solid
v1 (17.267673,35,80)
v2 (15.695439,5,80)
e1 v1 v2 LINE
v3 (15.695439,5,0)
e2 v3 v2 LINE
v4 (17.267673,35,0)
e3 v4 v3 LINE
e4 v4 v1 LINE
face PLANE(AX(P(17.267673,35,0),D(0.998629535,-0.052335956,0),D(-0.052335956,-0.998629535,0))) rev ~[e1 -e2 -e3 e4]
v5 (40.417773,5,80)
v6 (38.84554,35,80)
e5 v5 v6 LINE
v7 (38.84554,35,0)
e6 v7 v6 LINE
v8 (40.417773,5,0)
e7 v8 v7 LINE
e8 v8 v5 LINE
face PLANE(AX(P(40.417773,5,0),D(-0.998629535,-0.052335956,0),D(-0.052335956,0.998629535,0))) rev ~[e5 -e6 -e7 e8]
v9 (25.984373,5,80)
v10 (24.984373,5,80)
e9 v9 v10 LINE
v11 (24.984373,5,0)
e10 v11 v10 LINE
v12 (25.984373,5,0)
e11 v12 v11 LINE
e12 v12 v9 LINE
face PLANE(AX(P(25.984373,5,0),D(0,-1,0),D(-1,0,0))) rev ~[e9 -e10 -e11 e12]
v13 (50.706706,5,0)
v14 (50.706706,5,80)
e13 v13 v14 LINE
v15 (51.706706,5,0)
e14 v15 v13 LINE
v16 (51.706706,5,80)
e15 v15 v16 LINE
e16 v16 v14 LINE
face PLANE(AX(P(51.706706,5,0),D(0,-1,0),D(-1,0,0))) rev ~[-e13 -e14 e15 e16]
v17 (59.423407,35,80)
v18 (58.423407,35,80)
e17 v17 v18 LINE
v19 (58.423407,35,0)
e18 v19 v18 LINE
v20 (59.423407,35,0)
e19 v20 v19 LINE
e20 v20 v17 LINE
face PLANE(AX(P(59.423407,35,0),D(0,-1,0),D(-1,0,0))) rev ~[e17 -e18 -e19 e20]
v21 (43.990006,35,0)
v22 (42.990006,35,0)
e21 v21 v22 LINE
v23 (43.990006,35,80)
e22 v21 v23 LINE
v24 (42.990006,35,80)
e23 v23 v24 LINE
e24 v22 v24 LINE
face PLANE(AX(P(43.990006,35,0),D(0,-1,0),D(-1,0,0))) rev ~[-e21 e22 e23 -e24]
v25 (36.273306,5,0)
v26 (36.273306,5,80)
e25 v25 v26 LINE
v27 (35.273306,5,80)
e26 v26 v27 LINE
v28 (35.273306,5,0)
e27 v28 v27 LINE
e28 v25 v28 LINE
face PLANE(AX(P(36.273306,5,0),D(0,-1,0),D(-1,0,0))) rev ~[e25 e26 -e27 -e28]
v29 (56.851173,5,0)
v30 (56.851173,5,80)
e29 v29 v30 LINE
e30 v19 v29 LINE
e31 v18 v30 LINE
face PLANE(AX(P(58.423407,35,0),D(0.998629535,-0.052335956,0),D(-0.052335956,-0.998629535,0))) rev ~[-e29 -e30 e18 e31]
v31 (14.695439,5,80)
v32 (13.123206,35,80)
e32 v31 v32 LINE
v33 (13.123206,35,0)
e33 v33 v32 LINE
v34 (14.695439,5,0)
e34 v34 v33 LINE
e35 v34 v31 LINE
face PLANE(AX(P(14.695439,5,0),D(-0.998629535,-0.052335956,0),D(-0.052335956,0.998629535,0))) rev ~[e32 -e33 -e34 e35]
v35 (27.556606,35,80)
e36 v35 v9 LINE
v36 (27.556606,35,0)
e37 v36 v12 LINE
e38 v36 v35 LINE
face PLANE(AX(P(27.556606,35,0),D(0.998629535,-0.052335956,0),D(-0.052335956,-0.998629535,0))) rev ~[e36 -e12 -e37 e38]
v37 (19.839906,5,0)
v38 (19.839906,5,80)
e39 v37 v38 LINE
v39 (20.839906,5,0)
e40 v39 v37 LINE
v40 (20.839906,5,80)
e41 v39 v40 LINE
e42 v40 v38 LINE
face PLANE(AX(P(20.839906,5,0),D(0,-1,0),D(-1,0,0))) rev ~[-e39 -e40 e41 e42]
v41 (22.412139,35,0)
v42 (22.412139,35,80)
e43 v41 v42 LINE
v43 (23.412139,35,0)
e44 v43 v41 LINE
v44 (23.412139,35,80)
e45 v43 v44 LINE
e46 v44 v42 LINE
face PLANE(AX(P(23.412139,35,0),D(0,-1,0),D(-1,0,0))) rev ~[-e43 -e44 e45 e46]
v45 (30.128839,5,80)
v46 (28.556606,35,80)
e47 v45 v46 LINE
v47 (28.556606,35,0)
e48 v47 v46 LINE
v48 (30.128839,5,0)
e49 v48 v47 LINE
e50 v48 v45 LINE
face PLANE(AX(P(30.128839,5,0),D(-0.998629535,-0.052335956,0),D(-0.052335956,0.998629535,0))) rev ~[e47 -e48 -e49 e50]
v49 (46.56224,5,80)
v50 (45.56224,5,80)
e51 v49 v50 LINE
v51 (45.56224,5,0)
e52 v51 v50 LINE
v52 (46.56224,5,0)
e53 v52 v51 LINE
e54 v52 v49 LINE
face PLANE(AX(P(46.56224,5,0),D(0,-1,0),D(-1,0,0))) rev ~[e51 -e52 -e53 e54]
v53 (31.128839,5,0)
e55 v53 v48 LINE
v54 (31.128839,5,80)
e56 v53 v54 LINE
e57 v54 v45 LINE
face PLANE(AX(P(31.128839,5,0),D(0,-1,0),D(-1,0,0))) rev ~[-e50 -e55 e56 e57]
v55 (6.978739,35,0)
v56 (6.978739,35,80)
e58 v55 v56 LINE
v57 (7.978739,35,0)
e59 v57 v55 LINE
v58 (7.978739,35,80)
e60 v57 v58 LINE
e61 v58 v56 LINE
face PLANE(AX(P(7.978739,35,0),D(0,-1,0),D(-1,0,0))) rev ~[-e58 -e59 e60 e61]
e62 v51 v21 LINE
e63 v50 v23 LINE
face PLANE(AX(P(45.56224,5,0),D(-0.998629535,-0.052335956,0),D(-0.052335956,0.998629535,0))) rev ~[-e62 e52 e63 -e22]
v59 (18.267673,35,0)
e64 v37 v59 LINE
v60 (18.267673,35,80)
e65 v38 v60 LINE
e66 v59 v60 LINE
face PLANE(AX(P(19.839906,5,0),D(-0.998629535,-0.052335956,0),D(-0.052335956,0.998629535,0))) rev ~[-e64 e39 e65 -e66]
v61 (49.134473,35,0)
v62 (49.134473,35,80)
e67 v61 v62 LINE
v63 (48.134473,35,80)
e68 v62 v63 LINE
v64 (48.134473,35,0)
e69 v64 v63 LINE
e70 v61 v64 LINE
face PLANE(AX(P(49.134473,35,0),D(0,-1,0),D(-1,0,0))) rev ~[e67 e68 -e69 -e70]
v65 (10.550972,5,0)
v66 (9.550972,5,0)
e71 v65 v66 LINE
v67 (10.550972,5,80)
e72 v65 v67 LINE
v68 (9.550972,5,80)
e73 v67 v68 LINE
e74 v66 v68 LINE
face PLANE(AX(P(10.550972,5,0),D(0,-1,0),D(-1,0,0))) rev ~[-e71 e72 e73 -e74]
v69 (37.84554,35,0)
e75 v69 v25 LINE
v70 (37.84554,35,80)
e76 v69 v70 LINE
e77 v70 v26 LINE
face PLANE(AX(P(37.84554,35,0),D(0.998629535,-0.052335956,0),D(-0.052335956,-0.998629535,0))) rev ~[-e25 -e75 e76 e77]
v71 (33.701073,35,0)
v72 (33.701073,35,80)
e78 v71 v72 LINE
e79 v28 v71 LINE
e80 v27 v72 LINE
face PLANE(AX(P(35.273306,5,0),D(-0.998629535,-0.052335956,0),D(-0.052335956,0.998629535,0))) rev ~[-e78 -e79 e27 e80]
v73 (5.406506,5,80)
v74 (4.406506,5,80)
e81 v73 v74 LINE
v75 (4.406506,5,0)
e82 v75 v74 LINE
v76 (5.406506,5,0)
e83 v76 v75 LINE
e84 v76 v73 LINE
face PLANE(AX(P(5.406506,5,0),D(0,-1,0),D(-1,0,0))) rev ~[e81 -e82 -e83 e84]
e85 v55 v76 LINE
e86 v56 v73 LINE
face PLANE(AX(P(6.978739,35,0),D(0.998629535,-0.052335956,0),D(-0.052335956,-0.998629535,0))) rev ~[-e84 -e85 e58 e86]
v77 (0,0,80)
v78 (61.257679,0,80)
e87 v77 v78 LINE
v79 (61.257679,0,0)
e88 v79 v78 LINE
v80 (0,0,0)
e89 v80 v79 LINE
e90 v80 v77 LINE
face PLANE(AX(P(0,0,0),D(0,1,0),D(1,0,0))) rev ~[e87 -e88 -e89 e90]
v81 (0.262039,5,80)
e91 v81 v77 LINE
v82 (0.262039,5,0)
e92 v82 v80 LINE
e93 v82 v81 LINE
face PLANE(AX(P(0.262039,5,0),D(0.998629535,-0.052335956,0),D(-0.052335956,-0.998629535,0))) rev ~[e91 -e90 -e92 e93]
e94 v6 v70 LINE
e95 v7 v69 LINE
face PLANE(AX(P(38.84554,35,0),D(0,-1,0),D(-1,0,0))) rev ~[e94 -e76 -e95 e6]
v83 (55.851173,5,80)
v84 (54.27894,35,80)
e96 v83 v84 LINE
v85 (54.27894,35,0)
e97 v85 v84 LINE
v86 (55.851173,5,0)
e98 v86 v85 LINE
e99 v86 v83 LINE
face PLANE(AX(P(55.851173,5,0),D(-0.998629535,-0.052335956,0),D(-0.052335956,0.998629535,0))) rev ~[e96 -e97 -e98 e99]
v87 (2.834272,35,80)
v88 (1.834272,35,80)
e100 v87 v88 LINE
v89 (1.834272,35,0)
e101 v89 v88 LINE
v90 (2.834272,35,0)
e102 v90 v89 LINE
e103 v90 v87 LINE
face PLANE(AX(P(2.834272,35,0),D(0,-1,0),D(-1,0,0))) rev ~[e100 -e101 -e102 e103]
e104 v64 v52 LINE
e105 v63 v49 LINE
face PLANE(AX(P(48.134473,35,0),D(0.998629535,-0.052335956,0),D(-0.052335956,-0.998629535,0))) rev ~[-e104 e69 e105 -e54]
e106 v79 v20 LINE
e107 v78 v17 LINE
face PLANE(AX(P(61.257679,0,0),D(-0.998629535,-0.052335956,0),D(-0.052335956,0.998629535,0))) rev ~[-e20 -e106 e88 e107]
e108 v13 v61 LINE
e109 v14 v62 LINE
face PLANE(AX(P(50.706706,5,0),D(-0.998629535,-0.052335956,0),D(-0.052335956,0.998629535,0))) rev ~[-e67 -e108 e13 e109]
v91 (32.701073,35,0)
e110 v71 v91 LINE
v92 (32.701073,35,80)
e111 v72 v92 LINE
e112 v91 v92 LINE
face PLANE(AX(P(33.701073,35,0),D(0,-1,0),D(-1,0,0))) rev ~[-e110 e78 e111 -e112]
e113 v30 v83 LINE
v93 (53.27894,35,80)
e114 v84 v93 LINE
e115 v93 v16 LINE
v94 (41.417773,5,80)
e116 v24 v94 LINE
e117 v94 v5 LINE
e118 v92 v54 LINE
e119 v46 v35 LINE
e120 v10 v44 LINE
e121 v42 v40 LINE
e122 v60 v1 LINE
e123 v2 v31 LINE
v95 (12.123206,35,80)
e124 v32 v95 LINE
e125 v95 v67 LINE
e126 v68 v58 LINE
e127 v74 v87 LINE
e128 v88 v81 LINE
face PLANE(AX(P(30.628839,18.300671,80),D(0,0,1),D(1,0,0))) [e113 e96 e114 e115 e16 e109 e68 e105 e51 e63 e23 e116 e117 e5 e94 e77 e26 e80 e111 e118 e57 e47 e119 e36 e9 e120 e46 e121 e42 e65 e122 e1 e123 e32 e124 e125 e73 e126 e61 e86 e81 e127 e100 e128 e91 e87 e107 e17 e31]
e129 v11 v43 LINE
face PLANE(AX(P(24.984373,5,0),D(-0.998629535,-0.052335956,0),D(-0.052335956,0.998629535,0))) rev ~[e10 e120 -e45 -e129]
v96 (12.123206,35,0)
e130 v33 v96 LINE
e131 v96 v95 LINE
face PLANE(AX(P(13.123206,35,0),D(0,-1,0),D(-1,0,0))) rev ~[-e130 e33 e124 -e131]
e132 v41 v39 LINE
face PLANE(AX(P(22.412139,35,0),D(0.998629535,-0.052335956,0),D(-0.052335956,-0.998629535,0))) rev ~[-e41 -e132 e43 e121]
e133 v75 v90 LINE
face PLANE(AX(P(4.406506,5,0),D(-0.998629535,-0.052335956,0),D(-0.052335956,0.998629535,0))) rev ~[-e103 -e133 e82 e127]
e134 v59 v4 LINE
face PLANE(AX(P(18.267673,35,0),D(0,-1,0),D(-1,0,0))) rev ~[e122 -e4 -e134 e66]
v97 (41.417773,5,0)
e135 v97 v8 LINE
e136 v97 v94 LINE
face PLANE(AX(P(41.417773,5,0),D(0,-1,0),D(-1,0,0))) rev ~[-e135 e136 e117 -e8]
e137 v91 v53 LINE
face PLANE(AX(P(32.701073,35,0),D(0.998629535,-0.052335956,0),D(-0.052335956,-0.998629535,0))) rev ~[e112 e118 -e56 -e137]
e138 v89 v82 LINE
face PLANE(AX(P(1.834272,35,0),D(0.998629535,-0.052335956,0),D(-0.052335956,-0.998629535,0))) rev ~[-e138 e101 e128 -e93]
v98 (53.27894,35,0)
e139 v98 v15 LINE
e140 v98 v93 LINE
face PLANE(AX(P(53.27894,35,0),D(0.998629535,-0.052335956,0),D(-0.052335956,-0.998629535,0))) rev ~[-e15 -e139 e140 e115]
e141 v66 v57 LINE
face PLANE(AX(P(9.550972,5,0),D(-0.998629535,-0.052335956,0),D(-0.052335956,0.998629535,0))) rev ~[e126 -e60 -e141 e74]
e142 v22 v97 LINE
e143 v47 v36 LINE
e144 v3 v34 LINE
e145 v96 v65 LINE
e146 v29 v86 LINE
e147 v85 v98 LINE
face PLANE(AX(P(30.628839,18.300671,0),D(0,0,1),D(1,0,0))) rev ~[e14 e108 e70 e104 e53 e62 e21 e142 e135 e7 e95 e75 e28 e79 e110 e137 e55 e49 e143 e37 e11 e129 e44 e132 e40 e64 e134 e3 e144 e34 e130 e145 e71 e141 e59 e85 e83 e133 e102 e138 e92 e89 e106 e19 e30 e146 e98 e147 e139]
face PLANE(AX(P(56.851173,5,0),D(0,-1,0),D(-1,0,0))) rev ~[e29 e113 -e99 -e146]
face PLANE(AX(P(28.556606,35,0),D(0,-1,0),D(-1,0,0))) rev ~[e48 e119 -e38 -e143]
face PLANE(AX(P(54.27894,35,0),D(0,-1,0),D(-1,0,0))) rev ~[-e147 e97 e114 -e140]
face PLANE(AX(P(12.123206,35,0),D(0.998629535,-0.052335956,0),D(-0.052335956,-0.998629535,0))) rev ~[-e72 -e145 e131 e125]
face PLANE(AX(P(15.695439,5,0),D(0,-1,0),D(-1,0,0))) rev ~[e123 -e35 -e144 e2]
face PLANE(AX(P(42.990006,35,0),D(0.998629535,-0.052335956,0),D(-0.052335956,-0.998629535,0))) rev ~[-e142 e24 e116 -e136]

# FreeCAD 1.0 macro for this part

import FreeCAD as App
import Part
import Sketcher
from FreeCAD import Vector
Q = App.Units.Quantity


def add_polygon(sketch, points):
    """Adds a closed chain of lines whose ends are joined by coincident constraints."""
    first, n = sketch.GeometryCount, len(points)
    for a, b in zip(points, points[1:] + points[:1]):
        sketch.addGeometry(Part.LineSegment(App.Vector(*a, 0), App.Vector(*b, 0)), False)
    for i in range(n):
        sketch.addConstraint(Sketcher.Constraint("Coincident", first + i, 2, first + (i + 1) % n, 1))

doc = App.newDocument("Part")
body = doc.addObject("PartDesign::Body", "Body")

sketch1 = doc.addObject("Sketcher::SketchObject", "Sketch")
body.addObject(sketch1)
sketch1.AttachmentSupport = (doc.XY_Plane, [""])
sketch1.MapMode = "FlatFace"
add_polygon(sketch1, [(0, 0), (61.3, 0), (59.4, 35), (58.4, 35), (56.9, 5), (55.9, 5), (54.3, 35), (53.3, 35), (51.7, 5), (50.7, 5), (49.1, 35), (48.1, 35), (46.6, 5), (45.6, 5), (44, 35), (43, 35), (41.4, 5), (40.4, 5), (38.8, 35), (37.8, 35), (36.3, 5), (35.3, 5), (33.7, 35), (32.7, 35), (31.1, 5), (30.1, 5), (28.6, 35), (27.6, 35), (26, 5), (25, 5), (23.4, 35), (22.4, 35), (20.8, 5), (19.8, 5), (18.3, 35), (17.3, 35), (15.7, 5), (14.7, 5), (13.1, 35), (12.1, 35), (10.6, 5), (9.6, 5), (8, 35), (7, 35), (5.4, 5), (4.4, 5), (2.8, 35), (1.8, 35), (0.3, 5)])
sketch1.addConstraint(Sketcher.Constraint("Horizontal", 0))
sketch1.addConstraint(Sketcher.Constraint("Horizontal", 2))
sketch1.addConstraint(Sketcher.Constraint("Horizontal", 4))
sketch1.addConstraint(Sketcher.Constraint("Horizontal", 6))
sketch1.addConstraint(Sketcher.Constraint("Horizontal", 8))
sketch1.addConstraint(Sketcher.Constraint("Horizontal", 10))
sketch1.addConstraint(Sketcher.Constraint("Horizontal", 12))
sketch1.addConstraint(Sketcher.Constraint("Horizontal", 14))
sketch1.addConstraint(Sketcher.Constraint("Horizontal", 16))
sketch1.addConstraint(Sketcher.Constraint("Horizontal", 18))
sketch1.addConstraint(Sketcher.Constraint("Horizontal", 20))
sketch1.addConstraint(Sketcher.Constraint("Horizontal", 22))
sketch1.addConstraint(Sketcher.Constraint("Horizontal", 24))
sketch1.addConstraint(Sketcher.Constraint("Horizontal", 26))
sketch1.addConstraint(Sketcher.Constraint("Horizontal", 28))
sketch1.addConstraint(Sketcher.Constraint("Horizontal", 30))
sketch1.addConstraint(Sketcher.Constraint("Horizontal", 32))
sketch1.addConstraint(Sketcher.Constraint("Horizontal", 34))
sketch1.addConstraint(Sketcher.Constraint("Horizontal", 36))
sketch1.addConstraint(Sketcher.Constraint("Horizontal", 38))
sketch1.addConstraint(Sketcher.Constraint("Horizontal", 40))
sketch1.addConstraint(Sketcher.Constraint("Horizontal", 42))
sketch1.addConstraint(Sketcher.Constraint("Horizontal", 44))
sketch1.addConstraint(Sketcher.Constraint("Horizontal", 46))
sketch1.addConstraint(Sketcher.Constraint("Coincident", 48, 2, -1, 1))
sketch1.addConstraint(Sketcher.Constraint("Parallel", 1, 5))
sketch1.addConstraint(Sketcher.Constraint("Parallel", 3, 7))
sketch1.addConstraint(Sketcher.Constraint("Parallel", 5, 9))
sketch1.addConstraint(Sketcher.Constraint("Parallel", 7, 11))
sketch1.addConstraint(Sketcher.Constraint("Parallel", 9, 13))
sketch1.addConstraint(Sketcher.Constraint("Parallel", 11, 15))
sketch1.addConstraint(Sketcher.Constraint("Parallel", 13, 17))
sketch1.addConstraint(Sketcher.Constraint("Parallel", 15, 19))
sketch1.addConstraint(Sketcher.Constraint("Parallel", 17, 21))
sketch1.addConstraint(Sketcher.Constraint("Parallel", 19, 23))
sketch1.addConstraint(Sketcher.Constraint("Parallel", 21, 25))
sketch1.addConstraint(Sketcher.Constraint("Parallel", 23, 27))
sketch1.addConstraint(Sketcher.Constraint("Parallel", 25, 29))
sketch1.addConstraint(Sketcher.Constraint("Parallel", 27, 31))
sketch1.addConstraint(Sketcher.Constraint("Parallel", 29, 33))
sketch1.addConstraint(Sketcher.Constraint("Parallel", 31, 35))
sketch1.addConstraint(Sketcher.Constraint("Parallel", 33, 37))
sketch1.addConstraint(Sketcher.Constraint("Parallel", 35, 39))
sketch1.addConstraint(Sketcher.Constraint("Parallel", 37, 41))
sketch1.addConstraint(Sketcher.Constraint("Parallel", 39, 43))
sketch1.addConstraint(Sketcher.Constraint("Parallel", 41, 45))
sketch1.addConstraint(Sketcher.Constraint("Parallel", 43, 47))
sketch1.addConstraint(Sketcher.Constraint("Parallel", 47, 48))
sketch1.addConstraint(Sketcher.Constraint("Horizontal", 2, 2, 5, 2))
sketch1.addConstraint(Sketcher.Constraint("Horizontal", 4, 2, 7, 2))
sketch1.addConstraint(Sketcher.Constraint("Horizontal", 6, 2, 9, 2))
sketch1.addConstraint(Sketcher.Constraint("Horizontal", 8, 2, 11, 2))
sketch1.addConstraint(Sketcher.Constraint("Horizontal", 10, 2, 13, 2))
sketch1.addConstraint(Sketcher.Constraint("Horizontal", 12, 2, 15, 2))
sketch1.addConstraint(Sketcher.Constraint("Horizontal", 14, 2, 17, 2))
sketch1.addConstraint(Sketcher.Constraint("Horizontal", 16, 2, 19, 2))
sketch1.addConstraint(Sketcher.Constraint("Horizontal", 18, 2, 21, 2))
sketch1.addConstraint(Sketcher.Constraint("Horizontal", 20, 2, 23, 2))
sketch1.addConstraint(Sketcher.Constraint("Horizontal", 22, 2, 25, 2))
sketch1.addConstraint(Sketcher.Constraint("Horizontal", 24, 2, 27, 2))
sketch1.addConstraint(Sketcher.Constraint("Horizontal", 26, 2, 29, 2))
sketch1.addConstraint(Sketcher.Constraint("Horizontal", 28, 2, 31, 2))
sketch1.addConstraint(Sketcher.Constraint("Horizontal", 30, 2, 33, 2))
sketch1.addConstraint(Sketcher.Constraint("Horizontal", 32, 2, 35, 2))
sketch1.addConstraint(Sketcher.Constraint("Horizontal", 34, 2, 37, 2))
sketch1.addConstraint(Sketcher.Constraint("Horizontal", 36, 2, 39, 2))
sketch1.addConstraint(Sketcher.Constraint("Horizontal", 38, 2, 41, 2))
sketch1.addConstraint(Sketcher.Constraint("Horizontal", 40, 2, 43, 2))
sketch1.addConstraint(Sketcher.Constraint("Horizontal", 42, 2, 45, 2))
sketch1.addConstraint(Sketcher.Constraint("Horizontal", 44, 2, 47, 2))
sketch1.addConstraint(Sketcher.Constraint("Equal", 2, 4))
sketch1.addConstraint(Sketcher.Constraint("Equal", 4, 6))
sketch1.addConstraint(Sketcher.Constraint("Equal", 6, 8))
sketch1.addConstraint(Sketcher.Constraint("Equal", 8, 10))
sketch1.addConstraint(Sketcher.Constraint("Equal", 10, 12))
sketch1.addConstraint(Sketcher.Constraint("Equal", 12, 14))
sketch1.addConstraint(Sketcher.Constraint("Equal", 14, 16))
sketch1.addConstraint(Sketcher.Constraint("Equal", 16, 18))
sketch1.addConstraint(Sketcher.Constraint("Equal", 18, 20))
sketch1.addConstraint(Sketcher.Constraint("Equal", 20, 22))
sketch1.addConstraint(Sketcher.Constraint("Equal", 22, 24))
sketch1.addConstraint(Sketcher.Constraint("Equal", 24, 26))
sketch1.addConstraint(Sketcher.Constraint("Equal", 26, 28))
sketch1.addConstraint(Sketcher.Constraint("Equal", 28, 30))
sketch1.addConstraint(Sketcher.Constraint("Equal", 30, 32))
sketch1.addConstraint(Sketcher.Constraint("Equal", 32, 34))
sketch1.addConstraint(Sketcher.Constraint("Equal", 34, 36))
sketch1.addConstraint(Sketcher.Constraint("Equal", 36, 38))
sketch1.addConstraint(Sketcher.Constraint("Equal", 38, 40))
sketch1.addConstraint(Sketcher.Constraint("Equal", 40, 42))
sketch1.addConstraint(Sketcher.Constraint("Equal", 42, 44))
sketch1.addConstraint(Sketcher.Constraint("Equal", 44, 46))
sketch1.addConstraint(Sketcher.Constraint("Equal", 3, 5))
sketch1.addConstraint(Sketcher.Constraint("DistanceX", 2, 2, 2, 1, Q("1 mm")))
sketch1.addConstraint(Sketcher.Constraint("Angle", 1, Q("93 deg")))
sketch1.addConstraint(Sketcher.Constraint("DistanceY", -1, 1, 1, 2, Q("35 mm")))
sketch1.addConstraint(Sketcher.Constraint("DistanceY", -1, 1, 3, 2, Q("5 mm")))
pad1 = doc.addObject("PartDesign::Pad", "Pad")
body.addObject(pad1)
pad1.Profile = sketch1
pad1.Length = 80

doc.recompute()
